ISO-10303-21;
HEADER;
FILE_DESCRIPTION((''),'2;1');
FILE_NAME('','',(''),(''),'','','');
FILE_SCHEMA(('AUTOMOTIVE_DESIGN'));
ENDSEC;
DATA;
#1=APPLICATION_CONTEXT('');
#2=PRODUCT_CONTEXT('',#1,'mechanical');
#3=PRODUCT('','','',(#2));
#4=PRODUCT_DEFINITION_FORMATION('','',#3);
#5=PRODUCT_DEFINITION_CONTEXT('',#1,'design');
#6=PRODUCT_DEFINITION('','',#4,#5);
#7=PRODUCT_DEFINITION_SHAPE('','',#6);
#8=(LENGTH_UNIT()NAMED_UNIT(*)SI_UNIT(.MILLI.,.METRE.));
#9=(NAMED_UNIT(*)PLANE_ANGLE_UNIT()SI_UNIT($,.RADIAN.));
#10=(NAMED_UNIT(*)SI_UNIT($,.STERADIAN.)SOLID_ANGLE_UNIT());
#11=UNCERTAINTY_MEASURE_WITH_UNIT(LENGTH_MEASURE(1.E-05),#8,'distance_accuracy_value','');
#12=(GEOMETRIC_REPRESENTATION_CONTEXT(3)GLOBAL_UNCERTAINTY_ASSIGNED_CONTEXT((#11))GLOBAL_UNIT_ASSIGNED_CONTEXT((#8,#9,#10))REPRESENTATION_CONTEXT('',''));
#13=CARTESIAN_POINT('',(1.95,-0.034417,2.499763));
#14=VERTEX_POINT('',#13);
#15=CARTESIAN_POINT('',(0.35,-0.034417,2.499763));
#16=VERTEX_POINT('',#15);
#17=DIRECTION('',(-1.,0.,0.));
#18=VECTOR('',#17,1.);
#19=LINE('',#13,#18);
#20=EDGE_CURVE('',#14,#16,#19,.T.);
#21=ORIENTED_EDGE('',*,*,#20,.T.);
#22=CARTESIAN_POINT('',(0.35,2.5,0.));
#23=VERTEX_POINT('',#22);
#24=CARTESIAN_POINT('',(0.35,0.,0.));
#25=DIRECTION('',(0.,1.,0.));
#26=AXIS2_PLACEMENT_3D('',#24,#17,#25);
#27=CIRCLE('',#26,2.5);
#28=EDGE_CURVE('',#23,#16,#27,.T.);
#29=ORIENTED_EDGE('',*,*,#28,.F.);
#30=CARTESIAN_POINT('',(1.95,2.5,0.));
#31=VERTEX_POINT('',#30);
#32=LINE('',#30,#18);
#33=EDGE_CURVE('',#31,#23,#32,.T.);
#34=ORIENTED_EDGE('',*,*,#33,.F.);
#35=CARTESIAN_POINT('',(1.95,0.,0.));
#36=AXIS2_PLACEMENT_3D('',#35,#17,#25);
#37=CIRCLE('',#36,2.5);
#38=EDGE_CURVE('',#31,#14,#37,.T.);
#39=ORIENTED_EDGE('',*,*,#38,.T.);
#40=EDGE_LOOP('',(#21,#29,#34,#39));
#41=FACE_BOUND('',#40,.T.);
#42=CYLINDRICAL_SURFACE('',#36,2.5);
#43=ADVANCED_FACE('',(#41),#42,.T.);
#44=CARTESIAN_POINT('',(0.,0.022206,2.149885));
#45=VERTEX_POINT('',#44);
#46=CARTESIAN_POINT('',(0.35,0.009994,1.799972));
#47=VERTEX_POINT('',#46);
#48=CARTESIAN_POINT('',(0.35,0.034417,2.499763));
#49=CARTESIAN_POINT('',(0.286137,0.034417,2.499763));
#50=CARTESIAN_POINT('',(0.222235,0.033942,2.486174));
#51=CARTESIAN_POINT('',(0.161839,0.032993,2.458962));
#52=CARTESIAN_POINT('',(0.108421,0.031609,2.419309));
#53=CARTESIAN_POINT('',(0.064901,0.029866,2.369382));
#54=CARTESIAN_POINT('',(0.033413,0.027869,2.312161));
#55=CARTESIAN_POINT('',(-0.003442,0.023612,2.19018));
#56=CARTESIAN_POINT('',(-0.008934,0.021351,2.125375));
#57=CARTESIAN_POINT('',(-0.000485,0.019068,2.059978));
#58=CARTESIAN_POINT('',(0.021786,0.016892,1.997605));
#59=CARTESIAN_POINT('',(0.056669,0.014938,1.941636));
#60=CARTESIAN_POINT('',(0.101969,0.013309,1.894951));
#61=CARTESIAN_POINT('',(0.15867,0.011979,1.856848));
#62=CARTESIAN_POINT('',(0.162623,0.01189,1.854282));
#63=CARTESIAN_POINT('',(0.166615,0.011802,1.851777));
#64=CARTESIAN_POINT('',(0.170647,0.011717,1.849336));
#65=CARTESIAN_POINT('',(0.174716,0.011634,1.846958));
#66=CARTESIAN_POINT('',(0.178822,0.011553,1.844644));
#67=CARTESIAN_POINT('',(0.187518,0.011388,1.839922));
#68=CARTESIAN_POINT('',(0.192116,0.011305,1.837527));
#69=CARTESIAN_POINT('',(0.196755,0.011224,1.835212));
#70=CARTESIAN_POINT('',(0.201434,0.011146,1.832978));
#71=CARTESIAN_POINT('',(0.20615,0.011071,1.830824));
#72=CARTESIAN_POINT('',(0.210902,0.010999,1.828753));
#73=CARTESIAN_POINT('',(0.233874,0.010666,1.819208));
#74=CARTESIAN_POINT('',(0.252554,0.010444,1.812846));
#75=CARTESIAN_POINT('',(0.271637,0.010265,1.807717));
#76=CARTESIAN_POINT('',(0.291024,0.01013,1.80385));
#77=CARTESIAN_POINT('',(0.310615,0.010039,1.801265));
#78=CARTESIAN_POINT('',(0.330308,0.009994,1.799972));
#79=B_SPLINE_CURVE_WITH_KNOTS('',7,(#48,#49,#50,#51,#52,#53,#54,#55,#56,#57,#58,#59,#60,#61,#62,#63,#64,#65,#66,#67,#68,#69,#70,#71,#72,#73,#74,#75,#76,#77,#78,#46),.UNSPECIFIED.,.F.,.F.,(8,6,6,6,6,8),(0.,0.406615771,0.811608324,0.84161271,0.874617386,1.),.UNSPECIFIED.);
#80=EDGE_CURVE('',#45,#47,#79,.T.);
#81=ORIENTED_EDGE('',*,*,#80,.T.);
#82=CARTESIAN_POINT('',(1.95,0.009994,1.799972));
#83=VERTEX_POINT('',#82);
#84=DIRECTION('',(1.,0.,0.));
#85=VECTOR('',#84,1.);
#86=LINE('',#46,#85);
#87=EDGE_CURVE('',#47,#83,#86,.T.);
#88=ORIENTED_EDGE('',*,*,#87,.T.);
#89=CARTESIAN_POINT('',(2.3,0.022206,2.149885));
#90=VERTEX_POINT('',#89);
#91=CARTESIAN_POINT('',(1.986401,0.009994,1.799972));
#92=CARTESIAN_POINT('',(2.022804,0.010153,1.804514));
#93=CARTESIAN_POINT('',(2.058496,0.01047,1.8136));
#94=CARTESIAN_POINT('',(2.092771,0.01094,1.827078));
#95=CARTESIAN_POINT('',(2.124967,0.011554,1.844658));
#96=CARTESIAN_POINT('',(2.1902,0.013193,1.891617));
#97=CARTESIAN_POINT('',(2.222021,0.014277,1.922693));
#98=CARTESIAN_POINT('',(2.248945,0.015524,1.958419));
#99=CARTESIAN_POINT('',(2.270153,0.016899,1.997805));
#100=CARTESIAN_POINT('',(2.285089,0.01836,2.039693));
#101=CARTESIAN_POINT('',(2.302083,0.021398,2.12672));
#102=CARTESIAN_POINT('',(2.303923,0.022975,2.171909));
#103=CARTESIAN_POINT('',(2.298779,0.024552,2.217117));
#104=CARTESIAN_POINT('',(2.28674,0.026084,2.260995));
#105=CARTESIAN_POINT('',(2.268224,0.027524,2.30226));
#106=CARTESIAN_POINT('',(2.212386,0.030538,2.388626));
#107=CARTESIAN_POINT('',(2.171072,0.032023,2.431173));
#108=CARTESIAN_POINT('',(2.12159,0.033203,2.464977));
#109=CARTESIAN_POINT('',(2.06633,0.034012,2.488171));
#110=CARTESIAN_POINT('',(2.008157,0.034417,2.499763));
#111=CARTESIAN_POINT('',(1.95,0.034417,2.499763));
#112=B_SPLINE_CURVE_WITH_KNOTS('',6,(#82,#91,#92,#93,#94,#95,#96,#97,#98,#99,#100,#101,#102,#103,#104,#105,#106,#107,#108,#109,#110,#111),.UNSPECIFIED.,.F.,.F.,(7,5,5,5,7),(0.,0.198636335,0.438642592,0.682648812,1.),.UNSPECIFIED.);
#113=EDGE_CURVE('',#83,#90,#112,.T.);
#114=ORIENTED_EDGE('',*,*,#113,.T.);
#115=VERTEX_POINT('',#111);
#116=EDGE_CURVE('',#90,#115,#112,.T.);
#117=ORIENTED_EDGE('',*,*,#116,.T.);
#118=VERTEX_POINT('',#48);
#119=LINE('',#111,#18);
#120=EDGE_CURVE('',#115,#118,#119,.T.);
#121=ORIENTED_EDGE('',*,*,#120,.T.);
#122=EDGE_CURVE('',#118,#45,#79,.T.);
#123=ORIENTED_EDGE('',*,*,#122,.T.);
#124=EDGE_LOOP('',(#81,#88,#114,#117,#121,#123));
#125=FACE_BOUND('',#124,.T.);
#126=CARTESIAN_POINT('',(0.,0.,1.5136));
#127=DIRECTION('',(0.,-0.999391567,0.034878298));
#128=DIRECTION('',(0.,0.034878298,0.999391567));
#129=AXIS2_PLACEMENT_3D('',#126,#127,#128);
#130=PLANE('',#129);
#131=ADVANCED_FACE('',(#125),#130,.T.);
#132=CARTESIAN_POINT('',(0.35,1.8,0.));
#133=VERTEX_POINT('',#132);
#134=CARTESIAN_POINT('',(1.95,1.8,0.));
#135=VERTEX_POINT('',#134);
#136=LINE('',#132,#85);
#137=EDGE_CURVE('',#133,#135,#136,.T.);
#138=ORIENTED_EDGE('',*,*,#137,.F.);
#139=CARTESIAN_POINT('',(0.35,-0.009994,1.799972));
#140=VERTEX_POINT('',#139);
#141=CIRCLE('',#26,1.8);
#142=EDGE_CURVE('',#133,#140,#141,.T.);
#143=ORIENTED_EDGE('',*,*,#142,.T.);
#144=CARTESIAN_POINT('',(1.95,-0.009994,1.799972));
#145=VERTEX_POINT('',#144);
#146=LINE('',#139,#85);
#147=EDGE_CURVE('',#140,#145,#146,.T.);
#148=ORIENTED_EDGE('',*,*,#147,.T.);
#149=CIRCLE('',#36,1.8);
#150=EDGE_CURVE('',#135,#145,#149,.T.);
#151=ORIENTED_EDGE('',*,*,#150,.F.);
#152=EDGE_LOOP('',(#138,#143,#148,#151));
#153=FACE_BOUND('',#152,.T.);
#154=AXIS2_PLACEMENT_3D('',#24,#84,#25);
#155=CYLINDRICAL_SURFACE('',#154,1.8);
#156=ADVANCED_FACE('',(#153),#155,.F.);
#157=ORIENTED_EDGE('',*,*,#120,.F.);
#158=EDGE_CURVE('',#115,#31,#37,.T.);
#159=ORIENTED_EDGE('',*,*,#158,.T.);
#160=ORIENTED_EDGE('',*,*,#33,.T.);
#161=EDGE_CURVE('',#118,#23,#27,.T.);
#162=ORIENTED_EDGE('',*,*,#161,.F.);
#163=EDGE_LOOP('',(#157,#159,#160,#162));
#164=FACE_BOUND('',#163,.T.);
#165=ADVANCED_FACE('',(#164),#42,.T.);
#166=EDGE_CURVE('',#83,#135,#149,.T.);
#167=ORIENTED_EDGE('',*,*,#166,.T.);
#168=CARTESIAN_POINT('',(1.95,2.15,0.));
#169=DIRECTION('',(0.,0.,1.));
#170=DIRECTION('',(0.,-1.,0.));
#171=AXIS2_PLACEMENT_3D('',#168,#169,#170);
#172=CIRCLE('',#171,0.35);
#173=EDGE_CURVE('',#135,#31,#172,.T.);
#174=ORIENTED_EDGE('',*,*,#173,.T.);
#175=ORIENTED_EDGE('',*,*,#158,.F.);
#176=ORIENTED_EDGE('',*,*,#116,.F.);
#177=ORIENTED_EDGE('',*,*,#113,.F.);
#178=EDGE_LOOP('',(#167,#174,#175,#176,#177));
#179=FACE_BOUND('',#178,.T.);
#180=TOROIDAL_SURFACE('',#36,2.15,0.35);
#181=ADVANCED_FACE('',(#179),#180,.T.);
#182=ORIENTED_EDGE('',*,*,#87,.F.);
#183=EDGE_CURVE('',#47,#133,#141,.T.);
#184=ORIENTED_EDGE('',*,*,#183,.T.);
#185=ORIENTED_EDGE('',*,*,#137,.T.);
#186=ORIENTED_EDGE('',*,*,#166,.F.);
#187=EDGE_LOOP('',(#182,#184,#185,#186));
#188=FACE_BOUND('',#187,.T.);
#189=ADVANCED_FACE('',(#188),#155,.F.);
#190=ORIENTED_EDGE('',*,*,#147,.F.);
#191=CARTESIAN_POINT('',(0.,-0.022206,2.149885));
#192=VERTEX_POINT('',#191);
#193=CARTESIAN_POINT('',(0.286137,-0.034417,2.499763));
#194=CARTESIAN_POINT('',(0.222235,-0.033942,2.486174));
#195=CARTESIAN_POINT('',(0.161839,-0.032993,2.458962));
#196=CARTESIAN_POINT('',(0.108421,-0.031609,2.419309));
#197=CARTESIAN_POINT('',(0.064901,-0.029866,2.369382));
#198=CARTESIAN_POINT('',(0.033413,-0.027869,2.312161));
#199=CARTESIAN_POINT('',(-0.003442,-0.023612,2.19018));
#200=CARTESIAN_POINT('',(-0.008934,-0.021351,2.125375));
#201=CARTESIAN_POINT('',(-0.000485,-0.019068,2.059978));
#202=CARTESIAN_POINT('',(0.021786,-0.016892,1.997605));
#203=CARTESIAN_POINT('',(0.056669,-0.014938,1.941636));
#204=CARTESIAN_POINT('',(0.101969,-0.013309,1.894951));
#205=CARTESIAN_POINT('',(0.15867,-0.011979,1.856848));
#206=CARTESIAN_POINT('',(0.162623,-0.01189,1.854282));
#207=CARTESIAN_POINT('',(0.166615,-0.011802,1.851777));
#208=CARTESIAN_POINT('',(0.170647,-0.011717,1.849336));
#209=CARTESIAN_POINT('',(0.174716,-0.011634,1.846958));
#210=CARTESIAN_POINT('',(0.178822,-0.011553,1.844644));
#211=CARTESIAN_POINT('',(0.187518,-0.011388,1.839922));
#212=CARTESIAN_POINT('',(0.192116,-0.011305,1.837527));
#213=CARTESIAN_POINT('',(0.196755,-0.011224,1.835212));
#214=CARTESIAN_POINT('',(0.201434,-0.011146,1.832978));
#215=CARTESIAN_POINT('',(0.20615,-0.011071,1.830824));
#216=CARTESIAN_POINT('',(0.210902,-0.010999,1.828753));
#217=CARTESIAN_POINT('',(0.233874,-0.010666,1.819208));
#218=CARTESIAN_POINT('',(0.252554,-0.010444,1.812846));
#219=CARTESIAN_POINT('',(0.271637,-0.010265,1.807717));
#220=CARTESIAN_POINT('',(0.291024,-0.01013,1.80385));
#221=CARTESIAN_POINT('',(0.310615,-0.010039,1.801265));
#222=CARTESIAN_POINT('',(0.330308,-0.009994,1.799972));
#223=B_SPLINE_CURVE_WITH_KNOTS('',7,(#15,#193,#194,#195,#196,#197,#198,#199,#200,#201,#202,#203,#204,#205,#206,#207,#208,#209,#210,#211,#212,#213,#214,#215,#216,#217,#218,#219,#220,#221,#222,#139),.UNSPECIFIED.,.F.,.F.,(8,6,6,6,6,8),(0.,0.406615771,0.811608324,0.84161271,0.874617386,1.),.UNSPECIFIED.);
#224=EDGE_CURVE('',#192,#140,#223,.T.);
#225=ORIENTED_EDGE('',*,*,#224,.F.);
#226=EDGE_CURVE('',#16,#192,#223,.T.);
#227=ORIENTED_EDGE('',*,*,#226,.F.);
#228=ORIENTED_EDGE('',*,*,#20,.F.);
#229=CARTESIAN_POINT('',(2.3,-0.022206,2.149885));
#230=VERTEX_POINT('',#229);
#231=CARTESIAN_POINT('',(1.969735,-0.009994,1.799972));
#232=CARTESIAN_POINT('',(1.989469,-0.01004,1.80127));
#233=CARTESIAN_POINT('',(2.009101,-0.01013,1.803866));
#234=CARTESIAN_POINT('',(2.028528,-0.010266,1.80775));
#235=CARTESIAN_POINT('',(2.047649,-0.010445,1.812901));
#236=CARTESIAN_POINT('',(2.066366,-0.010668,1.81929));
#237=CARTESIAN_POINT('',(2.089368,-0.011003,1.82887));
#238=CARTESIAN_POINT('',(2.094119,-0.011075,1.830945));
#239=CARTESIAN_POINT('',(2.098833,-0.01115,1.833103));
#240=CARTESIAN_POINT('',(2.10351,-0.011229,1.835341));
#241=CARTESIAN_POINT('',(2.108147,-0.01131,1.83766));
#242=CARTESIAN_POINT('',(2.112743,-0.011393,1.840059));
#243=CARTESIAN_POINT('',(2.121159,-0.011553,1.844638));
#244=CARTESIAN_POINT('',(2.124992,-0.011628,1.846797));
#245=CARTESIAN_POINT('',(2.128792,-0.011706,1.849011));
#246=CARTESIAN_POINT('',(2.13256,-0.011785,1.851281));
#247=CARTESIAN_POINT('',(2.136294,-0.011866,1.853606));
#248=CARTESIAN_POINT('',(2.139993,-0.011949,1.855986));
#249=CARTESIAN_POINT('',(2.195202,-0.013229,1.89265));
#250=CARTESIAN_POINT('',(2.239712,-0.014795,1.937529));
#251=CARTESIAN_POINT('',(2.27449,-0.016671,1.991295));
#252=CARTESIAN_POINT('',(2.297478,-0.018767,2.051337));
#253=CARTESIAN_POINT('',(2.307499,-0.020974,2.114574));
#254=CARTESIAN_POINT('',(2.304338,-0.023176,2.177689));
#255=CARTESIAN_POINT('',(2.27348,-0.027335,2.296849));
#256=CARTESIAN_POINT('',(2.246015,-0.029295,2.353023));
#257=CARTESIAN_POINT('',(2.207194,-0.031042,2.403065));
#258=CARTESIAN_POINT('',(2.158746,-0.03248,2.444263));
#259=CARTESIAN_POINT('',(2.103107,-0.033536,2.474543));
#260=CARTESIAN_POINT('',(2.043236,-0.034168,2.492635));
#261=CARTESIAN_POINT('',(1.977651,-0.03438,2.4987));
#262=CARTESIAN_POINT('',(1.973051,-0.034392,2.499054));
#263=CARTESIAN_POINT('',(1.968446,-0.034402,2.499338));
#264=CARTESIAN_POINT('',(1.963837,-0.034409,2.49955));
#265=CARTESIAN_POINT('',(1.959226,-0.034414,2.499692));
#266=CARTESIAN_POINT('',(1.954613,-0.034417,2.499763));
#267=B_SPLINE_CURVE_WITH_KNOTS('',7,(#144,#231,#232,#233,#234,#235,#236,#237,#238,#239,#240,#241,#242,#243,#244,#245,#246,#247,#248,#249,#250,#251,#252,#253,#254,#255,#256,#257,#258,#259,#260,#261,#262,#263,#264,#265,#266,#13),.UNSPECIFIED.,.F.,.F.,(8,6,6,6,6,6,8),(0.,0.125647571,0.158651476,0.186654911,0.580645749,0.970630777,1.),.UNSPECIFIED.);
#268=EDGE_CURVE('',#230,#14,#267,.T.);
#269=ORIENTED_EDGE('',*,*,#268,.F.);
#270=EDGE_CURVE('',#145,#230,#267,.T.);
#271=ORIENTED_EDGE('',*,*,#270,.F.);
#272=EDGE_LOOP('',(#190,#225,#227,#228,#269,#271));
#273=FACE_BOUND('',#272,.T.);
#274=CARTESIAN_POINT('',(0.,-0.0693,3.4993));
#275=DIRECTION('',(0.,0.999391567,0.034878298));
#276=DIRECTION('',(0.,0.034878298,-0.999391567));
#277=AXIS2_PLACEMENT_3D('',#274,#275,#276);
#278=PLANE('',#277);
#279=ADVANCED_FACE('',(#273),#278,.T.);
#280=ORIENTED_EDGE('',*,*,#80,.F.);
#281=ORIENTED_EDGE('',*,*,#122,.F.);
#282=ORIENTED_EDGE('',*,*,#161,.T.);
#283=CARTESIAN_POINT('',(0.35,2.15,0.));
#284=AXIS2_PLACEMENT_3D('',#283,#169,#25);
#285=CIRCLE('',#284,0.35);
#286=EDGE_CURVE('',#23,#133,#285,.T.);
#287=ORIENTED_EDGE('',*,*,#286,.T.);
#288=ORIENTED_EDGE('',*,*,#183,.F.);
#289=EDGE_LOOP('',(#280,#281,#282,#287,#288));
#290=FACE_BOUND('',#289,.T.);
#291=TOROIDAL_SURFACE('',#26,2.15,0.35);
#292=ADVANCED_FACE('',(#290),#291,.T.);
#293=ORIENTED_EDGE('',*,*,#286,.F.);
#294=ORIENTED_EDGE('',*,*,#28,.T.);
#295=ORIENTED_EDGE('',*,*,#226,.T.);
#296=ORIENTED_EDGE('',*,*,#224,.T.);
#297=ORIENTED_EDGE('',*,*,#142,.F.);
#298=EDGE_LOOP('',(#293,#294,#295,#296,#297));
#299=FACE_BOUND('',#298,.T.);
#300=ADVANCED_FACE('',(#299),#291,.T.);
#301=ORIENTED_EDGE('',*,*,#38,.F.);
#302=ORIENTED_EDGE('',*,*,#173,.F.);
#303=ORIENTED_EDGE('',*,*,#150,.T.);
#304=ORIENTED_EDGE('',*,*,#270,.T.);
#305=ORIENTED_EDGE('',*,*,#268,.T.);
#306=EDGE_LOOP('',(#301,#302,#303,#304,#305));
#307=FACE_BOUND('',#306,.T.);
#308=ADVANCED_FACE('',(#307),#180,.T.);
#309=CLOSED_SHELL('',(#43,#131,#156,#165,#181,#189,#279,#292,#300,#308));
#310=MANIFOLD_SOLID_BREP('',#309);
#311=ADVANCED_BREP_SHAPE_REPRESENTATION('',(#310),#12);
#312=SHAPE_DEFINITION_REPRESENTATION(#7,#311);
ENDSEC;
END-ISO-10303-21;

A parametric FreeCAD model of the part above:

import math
import FreeCAD as App
import Part
import Sketcher

V = App.Vector
Q = App.Units.Quantity

doc = App.newDocument("Part")
body = doc.addObject("PartDesign::Body", "Body")

# Sketch on XY plane
sketch1 = body.newObject("Sketcher::SketchObject", "Sketch")
sketch1.AttachmentSupport = (doc.getObject("XY_Plane"), [""])
sketch1.MapMode = "FlatFace"
sketch1.addGeometry(Part.LineSegment(V(1.95, 2.5, 0), V(0.35, 2.5, 0)), False)
sketch1.addGeometry(Part.ArcOfCircle(Part.Circle(V(0.35, 2.15, 0), V(0, 0, 1), 0.35), math.radians(90), math.radians(270)), False)
sketch1.addGeometry(Part.LineSegment(V(0.35, 1.8, 0), V(1.95, 1.8, 0)), False)
sketch1.addGeometry(Part.ArcOfCircle(Part.Circle(V(1.95, 2.15, 0), V(0, 0, 1), 0.35), math.radians(-90), math.radians(90)), False)
sketch1.addConstraint(Sketcher.Constraint("Tangent", 0, 2, 1, 1))
sketch1.addConstraint(Sketcher.Constraint("Tangent", 1, 2, 2, 1))
sketch1.addConstraint(Sketcher.Constraint("Tangent", 2, 2, 3, 1))
sketch1.addConstraint(Sketcher.Constraint("Tangent", 3, 2, 0, 1))
sketch1.addConstraint(Sketcher.Constraint("Horizontal", 0))
sketch1.addConstraint(Sketcher.Constraint("Horizontal", 2))
sketch1.addConstraint(Sketcher.Constraint("Radius", 1, Q("0.35 mm")))
sketch1.addConstraint(Sketcher.Constraint("DistanceX", 0, 2, 0, 1, Q("1.6 mm")))
sketch1.addConstraint(Sketcher.Constraint("DistanceY", -1, 1, 0, 2, Q("2.5 mm")))
sketch1.addConstraint(Sketcher.Constraint("DistanceX", -1, 1, 1, 3, Q("0.35 mm")))
revolution = body.newObject("PartDesign::Revolution", "Revolution")
revolution.Profile = sketch1
revolution.ReferenceAxis = (sketch1, ["H_Axis"])
revolution.Angle = 360

# Sketch on YZ plane
sketch2 = body.newObject("Sketcher::SketchObject", "Sketch001")
sketch2.AttachmentSupport = (doc.getObject("YZ_Plane"), [""])
sketch2.MapMode = "FlatFace"
sketch2.addGeometry(Part.LineSegment(V(0, 1.51, 0), V(0.07, 3.5, 0)), False)
sketch2.addGeometry(Part.ArcOfCircle(Part.Circle(V(0, 0, 0), V(0, 0, 1), 3.5), math.radians(88.87), math.radians(91.13)), False)
sketch2.addGeometry(Part.LineSegment(V(-0.07, 3.5, 0), V(0, 1.51, 0)), False)
sketch2.addConstraint(Sketcher.Constraint("Coincident", 0, 2, 1, 1))
sketch2.addConstraint(Sketcher.Constraint("Coincident", 1, 2, 2, 1))
sketch2.addConstraint(Sketcher.Constraint("Coincident", 2, 2, 0, 1))
sketch2.addConstraint(Sketcher.Constraint("Coincident", 1, 3, -1, 1))
sketch2.addConstraint(Sketcher.Constraint("PointOnObject", 2, 2, -2))
sketch2.addConstraint(Sketcher.Constraint("Horizontal", 0, 2, 1, 2))
sketch2.addConstraint(Sketcher.Constraint("Radius", 1, Q("3.5 mm")))
sketch2.addConstraint(Sketcher.Constraint("Distance", 0, Q("1.987 mm")))
sketch2.addConstraint(Sketcher.Constraint("DistanceX", -1, 1, 0, 2, Q("0.0693 mm")))
pocket1 = body.newObject("PartDesign::Pocket", "Pocket")
pocket1.Profile = sketch2
pocket1.Length = 2.3
pocket1.Reversed = True

doc.recompute()
